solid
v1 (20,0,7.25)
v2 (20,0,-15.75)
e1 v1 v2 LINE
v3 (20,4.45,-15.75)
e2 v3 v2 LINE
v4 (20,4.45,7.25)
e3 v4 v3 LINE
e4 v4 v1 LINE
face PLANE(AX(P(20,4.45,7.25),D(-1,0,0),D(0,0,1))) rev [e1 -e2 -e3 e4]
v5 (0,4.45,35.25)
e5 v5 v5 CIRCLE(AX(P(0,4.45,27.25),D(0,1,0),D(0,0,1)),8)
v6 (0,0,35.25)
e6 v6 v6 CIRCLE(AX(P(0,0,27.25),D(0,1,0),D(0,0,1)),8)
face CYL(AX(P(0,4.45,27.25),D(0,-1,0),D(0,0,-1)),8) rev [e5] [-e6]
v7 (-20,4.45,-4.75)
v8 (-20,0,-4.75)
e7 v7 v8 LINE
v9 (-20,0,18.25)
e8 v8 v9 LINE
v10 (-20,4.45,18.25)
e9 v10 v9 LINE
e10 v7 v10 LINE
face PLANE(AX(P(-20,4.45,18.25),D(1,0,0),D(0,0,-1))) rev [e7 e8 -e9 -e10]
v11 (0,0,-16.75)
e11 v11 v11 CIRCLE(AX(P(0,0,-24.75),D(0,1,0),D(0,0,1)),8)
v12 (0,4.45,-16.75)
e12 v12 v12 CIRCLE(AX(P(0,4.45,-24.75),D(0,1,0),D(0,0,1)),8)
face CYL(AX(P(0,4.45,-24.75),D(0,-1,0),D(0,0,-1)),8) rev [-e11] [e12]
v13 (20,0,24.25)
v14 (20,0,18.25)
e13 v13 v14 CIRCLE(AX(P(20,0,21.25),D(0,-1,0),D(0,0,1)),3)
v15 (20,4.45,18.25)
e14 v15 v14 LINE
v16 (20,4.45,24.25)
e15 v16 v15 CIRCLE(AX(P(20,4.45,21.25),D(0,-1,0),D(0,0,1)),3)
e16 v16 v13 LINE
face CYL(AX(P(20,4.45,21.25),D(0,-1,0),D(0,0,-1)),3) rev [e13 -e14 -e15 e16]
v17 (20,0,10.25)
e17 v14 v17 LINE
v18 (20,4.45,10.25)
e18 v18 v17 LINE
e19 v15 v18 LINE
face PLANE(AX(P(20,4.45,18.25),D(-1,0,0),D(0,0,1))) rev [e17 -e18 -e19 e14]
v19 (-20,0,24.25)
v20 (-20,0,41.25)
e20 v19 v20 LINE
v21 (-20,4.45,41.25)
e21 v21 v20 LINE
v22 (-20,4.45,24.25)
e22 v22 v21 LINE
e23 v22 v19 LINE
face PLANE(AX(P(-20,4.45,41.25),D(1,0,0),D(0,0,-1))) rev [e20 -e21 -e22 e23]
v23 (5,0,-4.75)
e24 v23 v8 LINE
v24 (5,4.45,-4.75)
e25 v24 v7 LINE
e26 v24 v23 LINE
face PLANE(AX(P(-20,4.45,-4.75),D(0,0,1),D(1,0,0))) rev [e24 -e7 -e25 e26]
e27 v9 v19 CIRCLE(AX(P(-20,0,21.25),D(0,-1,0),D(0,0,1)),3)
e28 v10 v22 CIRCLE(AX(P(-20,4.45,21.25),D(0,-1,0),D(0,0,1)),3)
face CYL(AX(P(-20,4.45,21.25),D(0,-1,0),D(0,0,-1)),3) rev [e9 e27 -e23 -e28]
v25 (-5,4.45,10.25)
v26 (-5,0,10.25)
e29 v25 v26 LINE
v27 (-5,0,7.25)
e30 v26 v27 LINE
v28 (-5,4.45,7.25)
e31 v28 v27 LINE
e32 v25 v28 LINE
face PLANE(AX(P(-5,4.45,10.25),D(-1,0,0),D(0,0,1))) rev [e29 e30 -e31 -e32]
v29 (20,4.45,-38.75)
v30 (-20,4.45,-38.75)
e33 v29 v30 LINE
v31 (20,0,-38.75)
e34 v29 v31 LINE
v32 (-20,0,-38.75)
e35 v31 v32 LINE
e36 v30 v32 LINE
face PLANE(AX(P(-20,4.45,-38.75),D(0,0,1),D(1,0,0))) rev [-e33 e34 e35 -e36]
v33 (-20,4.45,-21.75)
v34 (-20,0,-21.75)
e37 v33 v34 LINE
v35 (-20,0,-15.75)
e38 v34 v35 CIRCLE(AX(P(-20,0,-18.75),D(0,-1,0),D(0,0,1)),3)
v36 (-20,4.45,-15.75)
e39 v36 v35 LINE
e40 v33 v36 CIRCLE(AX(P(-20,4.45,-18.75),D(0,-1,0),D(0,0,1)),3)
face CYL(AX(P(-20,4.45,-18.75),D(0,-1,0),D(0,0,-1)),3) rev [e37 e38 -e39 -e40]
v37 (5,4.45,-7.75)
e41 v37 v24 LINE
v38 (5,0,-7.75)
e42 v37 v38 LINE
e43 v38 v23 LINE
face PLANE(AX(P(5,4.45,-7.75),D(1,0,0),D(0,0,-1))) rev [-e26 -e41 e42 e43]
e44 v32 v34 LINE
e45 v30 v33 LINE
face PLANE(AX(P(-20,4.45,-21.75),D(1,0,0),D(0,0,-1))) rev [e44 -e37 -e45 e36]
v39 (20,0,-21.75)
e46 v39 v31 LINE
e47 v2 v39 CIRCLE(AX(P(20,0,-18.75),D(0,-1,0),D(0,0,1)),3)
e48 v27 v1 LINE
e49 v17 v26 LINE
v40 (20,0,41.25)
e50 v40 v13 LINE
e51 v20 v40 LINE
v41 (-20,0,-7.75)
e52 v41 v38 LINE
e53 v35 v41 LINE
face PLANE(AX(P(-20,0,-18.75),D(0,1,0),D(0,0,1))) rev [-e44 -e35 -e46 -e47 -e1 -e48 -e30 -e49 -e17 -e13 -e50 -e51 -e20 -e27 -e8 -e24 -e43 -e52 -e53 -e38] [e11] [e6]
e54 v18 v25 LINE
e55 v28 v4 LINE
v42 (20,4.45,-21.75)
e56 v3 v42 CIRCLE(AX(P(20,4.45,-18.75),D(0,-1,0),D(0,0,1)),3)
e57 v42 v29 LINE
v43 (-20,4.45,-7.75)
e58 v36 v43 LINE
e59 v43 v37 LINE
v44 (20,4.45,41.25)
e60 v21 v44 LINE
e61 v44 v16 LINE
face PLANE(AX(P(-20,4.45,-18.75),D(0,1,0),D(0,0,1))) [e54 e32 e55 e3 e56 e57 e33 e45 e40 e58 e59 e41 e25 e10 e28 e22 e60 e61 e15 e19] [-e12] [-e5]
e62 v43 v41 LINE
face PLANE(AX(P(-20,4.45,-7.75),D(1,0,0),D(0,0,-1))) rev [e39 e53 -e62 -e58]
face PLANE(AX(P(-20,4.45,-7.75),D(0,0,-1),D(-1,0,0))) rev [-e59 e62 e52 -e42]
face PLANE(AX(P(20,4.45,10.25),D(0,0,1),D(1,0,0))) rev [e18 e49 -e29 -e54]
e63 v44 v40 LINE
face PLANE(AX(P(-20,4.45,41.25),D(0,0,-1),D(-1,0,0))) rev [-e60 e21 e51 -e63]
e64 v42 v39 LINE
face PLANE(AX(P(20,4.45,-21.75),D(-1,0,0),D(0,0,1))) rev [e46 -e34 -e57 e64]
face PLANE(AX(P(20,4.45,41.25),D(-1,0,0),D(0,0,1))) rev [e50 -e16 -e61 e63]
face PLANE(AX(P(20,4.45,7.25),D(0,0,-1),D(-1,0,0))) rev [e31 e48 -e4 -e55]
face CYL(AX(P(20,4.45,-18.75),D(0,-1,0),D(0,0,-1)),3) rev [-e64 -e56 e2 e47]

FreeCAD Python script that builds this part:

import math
import FreeCAD as App
import Part
import Sketcher
Q = App.Units.Quantity

doc = App.newDocument("Part")
body = doc.addObject("PartDesign::Body", "Body")

sketch1 = doc.addObject("Sketcher::SketchObject", "Sketch")
body.addObject(sketch1)
sketch1.AttachmentSupport = (doc.XZ_Plane, [""])
sketch1.MapMode = "FlatFace"
sketch1.addGeometry(Part.LineSegment(App.Vector(-20, 41.2, 0), App.Vector(20, 41.2, 0)), False)
sketch1.addGeometry(Part.LineSegment(App.Vector(20, 41.2, 0), App.Vector(20, 24.2, 0)), False)
sketch1.addGeometry(Part.ArcOfCircle(Part.Circle(App.Vector(20, 21.2, 0), App.Vector(0, 0, 1), 3), math.radians(90), math.radians(270)), False)
sketch1.addGeometry(Part.LineSegment(App.Vector(20, 18.2, 0), App.Vector(20, 10.2, 0)), False)
sketch1.addGeometry(Part.LineSegment(App.Vector(20, 10.2, 0), App.Vector(-5, 10.2, 0)), False)
sketch1.addGeometry(Part.LineSegment(App.Vector(-5, 10.2, 0), App.Vector(-5, 7.2, 0)), False)
sketch1.addGeometry(Part.LineSegment(App.Vector(-5, 7.2, 0), App.Vector(20, 7.2, 0)), False)
sketch1.addGeometry(Part.LineSegment(App.Vector(20, 7.2, 0), App.Vector(20, -15.8, 0)), False)
sketch1.addGeometry(Part.ArcOfCircle(Part.Circle(App.Vector(20, -18.8, 0), App.Vector(0, 0, 1), 3), math.radians(90), math.radians(270)), False)
sketch1.addGeometry(Part.LineSegment(App.Vector(20, -21.8, 0), App.Vector(20, -38.8, 0)), False)
sketch1.addGeometry(Part.LineSegment(App.Vector(20, -38.8, 0), App.Vector(-20, -38.8, 0)), False)
sketch1.addGeometry(Part.LineSegment(App.Vector(-20, -38.8, 0), App.Vector(-20, -21.8, 0)), False)
sketch1.addGeometry(Part.ArcOfCircle(Part.Circle(App.Vector(-20, -18.8, 0), App.Vector(0, 0, 1), 3), math.radians(-90), math.radians(90)), False)
sketch1.addGeometry(Part.LineSegment(App.Vector(-20, -15.8, 0), App.Vector(-20, -7.8, 0)), False)
sketch1.addGeometry(Part.LineSegment(App.Vector(-20, -7.8, 0), App.Vector(5, -7.8, 0)), False)
sketch1.addGeometry(Part.LineSegment(App.Vector(5, -7.8, 0), App.Vector(5, -4.8, 0)), False)
sketch1.addGeometry(Part.LineSegment(App.Vector(5, -4.8, 0), App.Vector(-20, -4.8, 0)), False)
sketch1.addGeometry(Part.LineSegment(App.Vector(-20, -4.8, 0), App.Vector(-20, 18.2, 0)), False)
sketch1.addGeometry(Part.ArcOfCircle(Part.Circle(App.Vector(-20, 21.2, 0), App.Vector(0, 0, 1), 3), math.radians(-90), math.radians(90)), False)
sketch1.addGeometry(Part.LineSegment(App.Vector(-20, 24.2, 0), App.Vector(-20, 41.2, 0)), False)
sketch1.addGeometry(Part.Circle(App.Vector(0, 27.2, 0), App.Vector(0, 0, 1), 8), False)
sketch1.addGeometry(Part.Circle(App.Vector(0, -24.8, 0), App.Vector(0, 0, 1), 8), False)
sketch1.addConstraint(Sketcher.Constraint("Coincident", 0, 2, 1, 1))
sketch1.addConstraint(Sketcher.Constraint("Coincident", 1, 2, 2, 1))
sketch1.addConstraint(Sketcher.Constraint("Coincident", 2, 2, 3, 1))
sketch1.addConstraint(Sketcher.Constraint("Coincident", 3, 2, 4, 1))
sketch1.addConstraint(Sketcher.Constraint("Coincident", 4, 2, 5, 1))
sketch1.addConstraint(Sketcher.Constraint("Coincident", 5, 2, 6, 1))
sketch1.addConstraint(Sketcher.Constraint("Coincident", 6, 2, 7, 1))
sketch1.addConstraint(Sketcher.Constraint("Coincident", 7, 2, 8, 1))
sketch1.addConstraint(Sketcher.Constraint("Coincident", 8, 2, 9, 1))
sketch1.addConstraint(Sketcher.Constraint("Coincident", 9, 2, 10, 1))
sketch1.addConstraint(Sketcher.Constraint("Coincident", 10, 2, 11, 1))
sketch1.addConstraint(Sketcher.Constraint("Coincident", 11, 2, 12, 1))
sketch1.addConstraint(Sketcher.Constraint("Coincident", 12, 2, 13, 1))
sketch1.addConstraint(Sketcher.Constraint("Coincident", 13, 2, 14, 1))
sketch1.addConstraint(Sketcher.Constraint("Coincident", 14, 2, 15, 1))
sketch1.addConstraint(Sketcher.Constraint("Coincident", 15, 2, 16, 1))
sketch1.addConstraint(Sketcher.Constraint("Coincident", 16, 2, 17, 1))
sketch1.addConstraint(Sketcher.Constraint("Coincident", 17, 2, 18, 1))
sketch1.addConstraint(Sketcher.Constraint("Coincident", 18, 2, 19, 1))
sketch1.addConstraint(Sketcher.Constraint("Coincident", 19, 2, 0, 1))
sketch1.addConstraint(Sketcher.Constraint("Horizontal", 0))
sketch1.addConstraint(Sketcher.Constraint("Vertical", 1))
sketch1.addConstraint(Sketcher.Constraint("Vertical", 3))
sketch1.addConstraint(Sketcher.Constraint("Horizontal", 4))
sketch1.addConstraint(Sketcher.Constraint("Vertical", 5))
sketch1.addConstraint(Sketcher.Constraint("Horizontal", 6))
sketch1.addConstraint(Sketcher.Constraint("Vertical", 7))
sketch1.addConstraint(Sketcher.Constraint("Vertical", 9))
sketch1.addConstraint(Sketcher.Constraint("Horizontal", 10))
sketch1.addConstraint(Sketcher.Constraint("Vertical", 11))
sketch1.addConstraint(Sketcher.Constraint("Vertical", 13))
sketch1.addConstraint(Sketcher.Constraint("Horizontal", 14))
sketch1.addConstraint(Sketcher.Constraint("Vertical", 15))
sketch1.addConstraint(Sketcher.Constraint("Horizontal", 16))
sketch1.addConstraint(Sketcher.Constraint("Vertical", 17))
sketch1.addConstraint(Sketcher.Constraint("Vertical", 19))
sketch1.addConstraint(Sketcher.Constraint("Equal", 2, 8))
sketch1.addConstraint(Sketcher.Constraint("Equal", 8, 12))
sketch1.addConstraint(Sketcher.Constraint("Equal", 12, 18))
sketch1.addConstraint(Sketcher.Constraint("Equal", 20, 21))
sketch1.addConstraint(Sketcher.Constraint("Symmetric", 8, 3, 12, 3, -2))
sketch1.addConstraint(Sketcher.Constraint("Symmetric", 2, 3, 18, 3, -2))
sketch1.addConstraint(Sketcher.Constraint("PointOnObject", 20, 3, -2))
sketch1.addConstraint(Sketcher.Constraint("PointOnObject", 21, 3, -2))
sketch1.addConstraint(Sketcher.Constraint("Vertical", 2, 3, 8, 3))
sketch1.addConstraint(Sketcher.Constraint("Vertical", 8, 3, 0, 2))
sketch1.addConstraint(Sketcher.Constraint("Vertical", 1, 2, 2, 2))
sketch1.addConstraint(Sketcher.Constraint("Vertical", 3, 2, 6, 2))
sketch1.addConstraint(Sketcher.Constraint("Vertical", 7, 2, 8, 2))
sketch1.addConstraint(Sketcher.Constraint("Vertical", 18, 3, 10, 2))
sketch1.addConstraint(Sketcher.Constraint("Vertical", 11, 2, 12, 2))
sketch1.addConstraint(Sketcher.Constraint("Vertical", 13, 2, 16, 2))
sketch1.addConstraint(Sketcher.Constraint("Vertical", 17, 2, 18, 2))
sketch1.addConstraint(Sketcher.Constraint("Equal", 6, 14))
sketch1.addConstraint(Sketcher.Constraint("Equal", 1, 9))
sketch1.addConstraint(Sketcher.Constraint("Equal", 3, 13))
sketch1.addConstraint(Sketcher.Constraint("Equal", 5, 15))
sketch1.addConstraint(Sketcher.Constraint("Diameter", 20, Q("16 mm")))
sketch1.addConstraint(Sketcher.Constraint("Radius", 2, Q("3 mm")))
sketch1.addConstraint(Sketcher.Constraint("DistanceX", 0, 1, 0, 2, Q("40 mm")))
sketch1.addConstraint(Sketcher.Constraint("DistanceX", 4, 2, 4, 1, Q("25 mm")))
sketch1.addConstraint(Sketcher.Constraint("DistanceY", 1, 2, 1, 1, Q("17 mm")))
sketch1.addConstraint(Sketcher.Constraint("DistanceY", 3, 2, 3, 1, Q("8 mm")))
sketch1.addConstraint(Sketcher.Constraint("DistanceY", 5, 2, 5, 1, Q("3 mm")))
sketch1.addConstraint(Sketcher.Constraint("DistanceY", 7, 2, 7, 1, Q("23 mm")))
sketch1.addConstraint(Sketcher.Constraint("DistanceY", 2, 3, 20, 3, Q("6 mm")))
sketch1.addConstraint(Sketcher.Constraint("DistanceY", 21, 3, 8, 3, Q("6 mm")))
sketch1.addConstraint(Sketcher.Constraint("DistanceY", -1, 1, 2, 3, Q("21.25 mm")))
pad1 = doc.addObject("PartDesign::Pad", "Pad")
body.addObject(pad1)
pad1.Profile = sketch1
pad1.Length = 4.45
pad1.Reversed = True

doc.recompute()
